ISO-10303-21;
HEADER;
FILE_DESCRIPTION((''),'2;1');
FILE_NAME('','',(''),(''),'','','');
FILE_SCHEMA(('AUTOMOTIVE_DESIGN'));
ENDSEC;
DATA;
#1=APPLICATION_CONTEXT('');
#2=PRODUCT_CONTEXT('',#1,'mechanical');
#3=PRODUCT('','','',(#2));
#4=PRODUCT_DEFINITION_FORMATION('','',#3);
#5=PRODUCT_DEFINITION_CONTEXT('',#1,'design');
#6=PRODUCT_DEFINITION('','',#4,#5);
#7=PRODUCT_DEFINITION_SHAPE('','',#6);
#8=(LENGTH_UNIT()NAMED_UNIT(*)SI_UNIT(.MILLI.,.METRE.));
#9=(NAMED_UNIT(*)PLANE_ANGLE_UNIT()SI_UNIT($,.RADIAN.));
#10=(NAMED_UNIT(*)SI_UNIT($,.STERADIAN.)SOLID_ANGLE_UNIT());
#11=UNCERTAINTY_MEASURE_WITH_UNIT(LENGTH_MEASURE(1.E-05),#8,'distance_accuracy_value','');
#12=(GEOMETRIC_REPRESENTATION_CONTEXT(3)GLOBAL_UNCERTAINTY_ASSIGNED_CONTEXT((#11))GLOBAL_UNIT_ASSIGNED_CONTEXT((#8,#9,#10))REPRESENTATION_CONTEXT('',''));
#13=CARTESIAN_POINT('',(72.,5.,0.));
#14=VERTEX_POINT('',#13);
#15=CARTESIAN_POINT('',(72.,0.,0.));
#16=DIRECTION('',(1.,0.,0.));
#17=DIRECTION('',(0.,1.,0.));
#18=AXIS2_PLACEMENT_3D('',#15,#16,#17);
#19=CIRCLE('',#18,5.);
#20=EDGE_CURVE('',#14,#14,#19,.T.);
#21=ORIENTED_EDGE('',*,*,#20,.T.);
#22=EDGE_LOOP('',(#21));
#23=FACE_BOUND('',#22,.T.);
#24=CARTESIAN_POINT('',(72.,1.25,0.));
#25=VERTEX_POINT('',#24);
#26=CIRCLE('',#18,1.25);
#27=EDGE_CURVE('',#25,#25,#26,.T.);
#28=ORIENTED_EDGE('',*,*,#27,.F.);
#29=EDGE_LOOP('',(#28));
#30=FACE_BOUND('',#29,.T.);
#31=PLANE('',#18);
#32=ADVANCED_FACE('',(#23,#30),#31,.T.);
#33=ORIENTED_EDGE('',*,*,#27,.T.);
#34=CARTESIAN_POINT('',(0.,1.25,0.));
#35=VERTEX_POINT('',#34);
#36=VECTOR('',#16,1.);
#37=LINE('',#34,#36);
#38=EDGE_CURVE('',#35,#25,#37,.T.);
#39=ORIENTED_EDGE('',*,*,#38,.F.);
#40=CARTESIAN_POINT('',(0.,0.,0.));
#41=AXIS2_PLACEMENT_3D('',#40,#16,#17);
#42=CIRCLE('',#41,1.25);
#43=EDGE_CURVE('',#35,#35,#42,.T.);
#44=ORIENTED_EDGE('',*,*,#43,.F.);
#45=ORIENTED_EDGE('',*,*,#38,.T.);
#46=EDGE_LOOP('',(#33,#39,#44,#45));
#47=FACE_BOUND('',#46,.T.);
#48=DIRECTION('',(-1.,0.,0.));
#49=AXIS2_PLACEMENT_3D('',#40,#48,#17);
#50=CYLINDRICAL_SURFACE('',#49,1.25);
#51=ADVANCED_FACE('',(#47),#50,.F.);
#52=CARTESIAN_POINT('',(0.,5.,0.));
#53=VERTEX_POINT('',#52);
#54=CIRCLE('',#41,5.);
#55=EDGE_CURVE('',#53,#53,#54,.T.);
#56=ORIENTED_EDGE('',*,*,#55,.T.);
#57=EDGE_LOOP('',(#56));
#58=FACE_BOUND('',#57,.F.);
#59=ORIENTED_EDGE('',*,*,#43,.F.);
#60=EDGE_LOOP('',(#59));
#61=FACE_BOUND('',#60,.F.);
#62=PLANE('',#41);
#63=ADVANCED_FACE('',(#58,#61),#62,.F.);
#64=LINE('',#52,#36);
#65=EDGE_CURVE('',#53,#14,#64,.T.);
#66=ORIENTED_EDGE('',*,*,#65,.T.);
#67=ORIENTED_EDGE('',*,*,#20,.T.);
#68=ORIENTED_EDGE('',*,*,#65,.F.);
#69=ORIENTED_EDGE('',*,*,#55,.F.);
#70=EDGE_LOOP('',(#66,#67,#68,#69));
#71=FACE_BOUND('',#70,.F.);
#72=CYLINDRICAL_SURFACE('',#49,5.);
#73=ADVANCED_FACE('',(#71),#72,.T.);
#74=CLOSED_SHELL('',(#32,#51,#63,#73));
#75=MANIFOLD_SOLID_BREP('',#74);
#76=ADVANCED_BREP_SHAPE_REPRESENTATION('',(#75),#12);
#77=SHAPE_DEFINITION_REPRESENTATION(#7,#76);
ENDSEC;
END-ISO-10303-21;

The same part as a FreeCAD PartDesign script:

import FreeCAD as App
import Part
import Sketcher
from FreeCAD import Vector
Q = App.Units.Quantity

doc = App.newDocument("Part")
params = doc.addObject("Spreadsheet::Sheet", "Params")
for row, (alias, value) in enumerate([
    ("sketch1_diameter", "10 mm"),
    ("sketch1_diameter2", "2.5 mm"),
    ("pad1_length", "72 mm"),
], start=1):
    params.set(f"A{row}", alias)
    params.set(f"B{row}", "=" + value)
    params.setAlias(f"B{row}", alias)

body = doc.addObject("PartDesign::Body", "Body")

# Sketch on YZ plane
sketch1 = body.newObject("Sketcher::SketchObject", "Sketch")
sketch1.AttachmentSupport = (doc.getObject("YZ_Plane"), [""])
sketch1.MapMode = "FlatFace"
sketch1.addGeometry(Part.Circle(Vector(0, 0, 0), Vector(0, 0, 1), 5), False)
sketch1.addGeometry(Part.Circle(Vector(0, 0, 0), Vector(0, 0, 1), 1.2), False)
sketch1.addConstraint(Sketcher.Constraint("Coincident", 0, 3, -1, 1))
sketch1.addConstraint(Sketcher.Constraint("Coincident", 1, 3, -1, 1))
sketch1.addConstraint(Sketcher.Constraint("Diameter", 0, Q("10 mm")))
sketch1.addConstraint(Sketcher.Constraint("Diameter", 1, Q("2.5 mm")))
sketch1.setExpression("Constraints[2]", "Params.sketch1_diameter")
sketch1.setExpression("Constraints[3]", "Params.sketch1_diameter2")
pad1 = body.newObject("PartDesign::Pad", "Pad")
pad1.Profile = sketch1
pad1.setExpression("Length", "Params.pad1_length")

doc.recompute()
